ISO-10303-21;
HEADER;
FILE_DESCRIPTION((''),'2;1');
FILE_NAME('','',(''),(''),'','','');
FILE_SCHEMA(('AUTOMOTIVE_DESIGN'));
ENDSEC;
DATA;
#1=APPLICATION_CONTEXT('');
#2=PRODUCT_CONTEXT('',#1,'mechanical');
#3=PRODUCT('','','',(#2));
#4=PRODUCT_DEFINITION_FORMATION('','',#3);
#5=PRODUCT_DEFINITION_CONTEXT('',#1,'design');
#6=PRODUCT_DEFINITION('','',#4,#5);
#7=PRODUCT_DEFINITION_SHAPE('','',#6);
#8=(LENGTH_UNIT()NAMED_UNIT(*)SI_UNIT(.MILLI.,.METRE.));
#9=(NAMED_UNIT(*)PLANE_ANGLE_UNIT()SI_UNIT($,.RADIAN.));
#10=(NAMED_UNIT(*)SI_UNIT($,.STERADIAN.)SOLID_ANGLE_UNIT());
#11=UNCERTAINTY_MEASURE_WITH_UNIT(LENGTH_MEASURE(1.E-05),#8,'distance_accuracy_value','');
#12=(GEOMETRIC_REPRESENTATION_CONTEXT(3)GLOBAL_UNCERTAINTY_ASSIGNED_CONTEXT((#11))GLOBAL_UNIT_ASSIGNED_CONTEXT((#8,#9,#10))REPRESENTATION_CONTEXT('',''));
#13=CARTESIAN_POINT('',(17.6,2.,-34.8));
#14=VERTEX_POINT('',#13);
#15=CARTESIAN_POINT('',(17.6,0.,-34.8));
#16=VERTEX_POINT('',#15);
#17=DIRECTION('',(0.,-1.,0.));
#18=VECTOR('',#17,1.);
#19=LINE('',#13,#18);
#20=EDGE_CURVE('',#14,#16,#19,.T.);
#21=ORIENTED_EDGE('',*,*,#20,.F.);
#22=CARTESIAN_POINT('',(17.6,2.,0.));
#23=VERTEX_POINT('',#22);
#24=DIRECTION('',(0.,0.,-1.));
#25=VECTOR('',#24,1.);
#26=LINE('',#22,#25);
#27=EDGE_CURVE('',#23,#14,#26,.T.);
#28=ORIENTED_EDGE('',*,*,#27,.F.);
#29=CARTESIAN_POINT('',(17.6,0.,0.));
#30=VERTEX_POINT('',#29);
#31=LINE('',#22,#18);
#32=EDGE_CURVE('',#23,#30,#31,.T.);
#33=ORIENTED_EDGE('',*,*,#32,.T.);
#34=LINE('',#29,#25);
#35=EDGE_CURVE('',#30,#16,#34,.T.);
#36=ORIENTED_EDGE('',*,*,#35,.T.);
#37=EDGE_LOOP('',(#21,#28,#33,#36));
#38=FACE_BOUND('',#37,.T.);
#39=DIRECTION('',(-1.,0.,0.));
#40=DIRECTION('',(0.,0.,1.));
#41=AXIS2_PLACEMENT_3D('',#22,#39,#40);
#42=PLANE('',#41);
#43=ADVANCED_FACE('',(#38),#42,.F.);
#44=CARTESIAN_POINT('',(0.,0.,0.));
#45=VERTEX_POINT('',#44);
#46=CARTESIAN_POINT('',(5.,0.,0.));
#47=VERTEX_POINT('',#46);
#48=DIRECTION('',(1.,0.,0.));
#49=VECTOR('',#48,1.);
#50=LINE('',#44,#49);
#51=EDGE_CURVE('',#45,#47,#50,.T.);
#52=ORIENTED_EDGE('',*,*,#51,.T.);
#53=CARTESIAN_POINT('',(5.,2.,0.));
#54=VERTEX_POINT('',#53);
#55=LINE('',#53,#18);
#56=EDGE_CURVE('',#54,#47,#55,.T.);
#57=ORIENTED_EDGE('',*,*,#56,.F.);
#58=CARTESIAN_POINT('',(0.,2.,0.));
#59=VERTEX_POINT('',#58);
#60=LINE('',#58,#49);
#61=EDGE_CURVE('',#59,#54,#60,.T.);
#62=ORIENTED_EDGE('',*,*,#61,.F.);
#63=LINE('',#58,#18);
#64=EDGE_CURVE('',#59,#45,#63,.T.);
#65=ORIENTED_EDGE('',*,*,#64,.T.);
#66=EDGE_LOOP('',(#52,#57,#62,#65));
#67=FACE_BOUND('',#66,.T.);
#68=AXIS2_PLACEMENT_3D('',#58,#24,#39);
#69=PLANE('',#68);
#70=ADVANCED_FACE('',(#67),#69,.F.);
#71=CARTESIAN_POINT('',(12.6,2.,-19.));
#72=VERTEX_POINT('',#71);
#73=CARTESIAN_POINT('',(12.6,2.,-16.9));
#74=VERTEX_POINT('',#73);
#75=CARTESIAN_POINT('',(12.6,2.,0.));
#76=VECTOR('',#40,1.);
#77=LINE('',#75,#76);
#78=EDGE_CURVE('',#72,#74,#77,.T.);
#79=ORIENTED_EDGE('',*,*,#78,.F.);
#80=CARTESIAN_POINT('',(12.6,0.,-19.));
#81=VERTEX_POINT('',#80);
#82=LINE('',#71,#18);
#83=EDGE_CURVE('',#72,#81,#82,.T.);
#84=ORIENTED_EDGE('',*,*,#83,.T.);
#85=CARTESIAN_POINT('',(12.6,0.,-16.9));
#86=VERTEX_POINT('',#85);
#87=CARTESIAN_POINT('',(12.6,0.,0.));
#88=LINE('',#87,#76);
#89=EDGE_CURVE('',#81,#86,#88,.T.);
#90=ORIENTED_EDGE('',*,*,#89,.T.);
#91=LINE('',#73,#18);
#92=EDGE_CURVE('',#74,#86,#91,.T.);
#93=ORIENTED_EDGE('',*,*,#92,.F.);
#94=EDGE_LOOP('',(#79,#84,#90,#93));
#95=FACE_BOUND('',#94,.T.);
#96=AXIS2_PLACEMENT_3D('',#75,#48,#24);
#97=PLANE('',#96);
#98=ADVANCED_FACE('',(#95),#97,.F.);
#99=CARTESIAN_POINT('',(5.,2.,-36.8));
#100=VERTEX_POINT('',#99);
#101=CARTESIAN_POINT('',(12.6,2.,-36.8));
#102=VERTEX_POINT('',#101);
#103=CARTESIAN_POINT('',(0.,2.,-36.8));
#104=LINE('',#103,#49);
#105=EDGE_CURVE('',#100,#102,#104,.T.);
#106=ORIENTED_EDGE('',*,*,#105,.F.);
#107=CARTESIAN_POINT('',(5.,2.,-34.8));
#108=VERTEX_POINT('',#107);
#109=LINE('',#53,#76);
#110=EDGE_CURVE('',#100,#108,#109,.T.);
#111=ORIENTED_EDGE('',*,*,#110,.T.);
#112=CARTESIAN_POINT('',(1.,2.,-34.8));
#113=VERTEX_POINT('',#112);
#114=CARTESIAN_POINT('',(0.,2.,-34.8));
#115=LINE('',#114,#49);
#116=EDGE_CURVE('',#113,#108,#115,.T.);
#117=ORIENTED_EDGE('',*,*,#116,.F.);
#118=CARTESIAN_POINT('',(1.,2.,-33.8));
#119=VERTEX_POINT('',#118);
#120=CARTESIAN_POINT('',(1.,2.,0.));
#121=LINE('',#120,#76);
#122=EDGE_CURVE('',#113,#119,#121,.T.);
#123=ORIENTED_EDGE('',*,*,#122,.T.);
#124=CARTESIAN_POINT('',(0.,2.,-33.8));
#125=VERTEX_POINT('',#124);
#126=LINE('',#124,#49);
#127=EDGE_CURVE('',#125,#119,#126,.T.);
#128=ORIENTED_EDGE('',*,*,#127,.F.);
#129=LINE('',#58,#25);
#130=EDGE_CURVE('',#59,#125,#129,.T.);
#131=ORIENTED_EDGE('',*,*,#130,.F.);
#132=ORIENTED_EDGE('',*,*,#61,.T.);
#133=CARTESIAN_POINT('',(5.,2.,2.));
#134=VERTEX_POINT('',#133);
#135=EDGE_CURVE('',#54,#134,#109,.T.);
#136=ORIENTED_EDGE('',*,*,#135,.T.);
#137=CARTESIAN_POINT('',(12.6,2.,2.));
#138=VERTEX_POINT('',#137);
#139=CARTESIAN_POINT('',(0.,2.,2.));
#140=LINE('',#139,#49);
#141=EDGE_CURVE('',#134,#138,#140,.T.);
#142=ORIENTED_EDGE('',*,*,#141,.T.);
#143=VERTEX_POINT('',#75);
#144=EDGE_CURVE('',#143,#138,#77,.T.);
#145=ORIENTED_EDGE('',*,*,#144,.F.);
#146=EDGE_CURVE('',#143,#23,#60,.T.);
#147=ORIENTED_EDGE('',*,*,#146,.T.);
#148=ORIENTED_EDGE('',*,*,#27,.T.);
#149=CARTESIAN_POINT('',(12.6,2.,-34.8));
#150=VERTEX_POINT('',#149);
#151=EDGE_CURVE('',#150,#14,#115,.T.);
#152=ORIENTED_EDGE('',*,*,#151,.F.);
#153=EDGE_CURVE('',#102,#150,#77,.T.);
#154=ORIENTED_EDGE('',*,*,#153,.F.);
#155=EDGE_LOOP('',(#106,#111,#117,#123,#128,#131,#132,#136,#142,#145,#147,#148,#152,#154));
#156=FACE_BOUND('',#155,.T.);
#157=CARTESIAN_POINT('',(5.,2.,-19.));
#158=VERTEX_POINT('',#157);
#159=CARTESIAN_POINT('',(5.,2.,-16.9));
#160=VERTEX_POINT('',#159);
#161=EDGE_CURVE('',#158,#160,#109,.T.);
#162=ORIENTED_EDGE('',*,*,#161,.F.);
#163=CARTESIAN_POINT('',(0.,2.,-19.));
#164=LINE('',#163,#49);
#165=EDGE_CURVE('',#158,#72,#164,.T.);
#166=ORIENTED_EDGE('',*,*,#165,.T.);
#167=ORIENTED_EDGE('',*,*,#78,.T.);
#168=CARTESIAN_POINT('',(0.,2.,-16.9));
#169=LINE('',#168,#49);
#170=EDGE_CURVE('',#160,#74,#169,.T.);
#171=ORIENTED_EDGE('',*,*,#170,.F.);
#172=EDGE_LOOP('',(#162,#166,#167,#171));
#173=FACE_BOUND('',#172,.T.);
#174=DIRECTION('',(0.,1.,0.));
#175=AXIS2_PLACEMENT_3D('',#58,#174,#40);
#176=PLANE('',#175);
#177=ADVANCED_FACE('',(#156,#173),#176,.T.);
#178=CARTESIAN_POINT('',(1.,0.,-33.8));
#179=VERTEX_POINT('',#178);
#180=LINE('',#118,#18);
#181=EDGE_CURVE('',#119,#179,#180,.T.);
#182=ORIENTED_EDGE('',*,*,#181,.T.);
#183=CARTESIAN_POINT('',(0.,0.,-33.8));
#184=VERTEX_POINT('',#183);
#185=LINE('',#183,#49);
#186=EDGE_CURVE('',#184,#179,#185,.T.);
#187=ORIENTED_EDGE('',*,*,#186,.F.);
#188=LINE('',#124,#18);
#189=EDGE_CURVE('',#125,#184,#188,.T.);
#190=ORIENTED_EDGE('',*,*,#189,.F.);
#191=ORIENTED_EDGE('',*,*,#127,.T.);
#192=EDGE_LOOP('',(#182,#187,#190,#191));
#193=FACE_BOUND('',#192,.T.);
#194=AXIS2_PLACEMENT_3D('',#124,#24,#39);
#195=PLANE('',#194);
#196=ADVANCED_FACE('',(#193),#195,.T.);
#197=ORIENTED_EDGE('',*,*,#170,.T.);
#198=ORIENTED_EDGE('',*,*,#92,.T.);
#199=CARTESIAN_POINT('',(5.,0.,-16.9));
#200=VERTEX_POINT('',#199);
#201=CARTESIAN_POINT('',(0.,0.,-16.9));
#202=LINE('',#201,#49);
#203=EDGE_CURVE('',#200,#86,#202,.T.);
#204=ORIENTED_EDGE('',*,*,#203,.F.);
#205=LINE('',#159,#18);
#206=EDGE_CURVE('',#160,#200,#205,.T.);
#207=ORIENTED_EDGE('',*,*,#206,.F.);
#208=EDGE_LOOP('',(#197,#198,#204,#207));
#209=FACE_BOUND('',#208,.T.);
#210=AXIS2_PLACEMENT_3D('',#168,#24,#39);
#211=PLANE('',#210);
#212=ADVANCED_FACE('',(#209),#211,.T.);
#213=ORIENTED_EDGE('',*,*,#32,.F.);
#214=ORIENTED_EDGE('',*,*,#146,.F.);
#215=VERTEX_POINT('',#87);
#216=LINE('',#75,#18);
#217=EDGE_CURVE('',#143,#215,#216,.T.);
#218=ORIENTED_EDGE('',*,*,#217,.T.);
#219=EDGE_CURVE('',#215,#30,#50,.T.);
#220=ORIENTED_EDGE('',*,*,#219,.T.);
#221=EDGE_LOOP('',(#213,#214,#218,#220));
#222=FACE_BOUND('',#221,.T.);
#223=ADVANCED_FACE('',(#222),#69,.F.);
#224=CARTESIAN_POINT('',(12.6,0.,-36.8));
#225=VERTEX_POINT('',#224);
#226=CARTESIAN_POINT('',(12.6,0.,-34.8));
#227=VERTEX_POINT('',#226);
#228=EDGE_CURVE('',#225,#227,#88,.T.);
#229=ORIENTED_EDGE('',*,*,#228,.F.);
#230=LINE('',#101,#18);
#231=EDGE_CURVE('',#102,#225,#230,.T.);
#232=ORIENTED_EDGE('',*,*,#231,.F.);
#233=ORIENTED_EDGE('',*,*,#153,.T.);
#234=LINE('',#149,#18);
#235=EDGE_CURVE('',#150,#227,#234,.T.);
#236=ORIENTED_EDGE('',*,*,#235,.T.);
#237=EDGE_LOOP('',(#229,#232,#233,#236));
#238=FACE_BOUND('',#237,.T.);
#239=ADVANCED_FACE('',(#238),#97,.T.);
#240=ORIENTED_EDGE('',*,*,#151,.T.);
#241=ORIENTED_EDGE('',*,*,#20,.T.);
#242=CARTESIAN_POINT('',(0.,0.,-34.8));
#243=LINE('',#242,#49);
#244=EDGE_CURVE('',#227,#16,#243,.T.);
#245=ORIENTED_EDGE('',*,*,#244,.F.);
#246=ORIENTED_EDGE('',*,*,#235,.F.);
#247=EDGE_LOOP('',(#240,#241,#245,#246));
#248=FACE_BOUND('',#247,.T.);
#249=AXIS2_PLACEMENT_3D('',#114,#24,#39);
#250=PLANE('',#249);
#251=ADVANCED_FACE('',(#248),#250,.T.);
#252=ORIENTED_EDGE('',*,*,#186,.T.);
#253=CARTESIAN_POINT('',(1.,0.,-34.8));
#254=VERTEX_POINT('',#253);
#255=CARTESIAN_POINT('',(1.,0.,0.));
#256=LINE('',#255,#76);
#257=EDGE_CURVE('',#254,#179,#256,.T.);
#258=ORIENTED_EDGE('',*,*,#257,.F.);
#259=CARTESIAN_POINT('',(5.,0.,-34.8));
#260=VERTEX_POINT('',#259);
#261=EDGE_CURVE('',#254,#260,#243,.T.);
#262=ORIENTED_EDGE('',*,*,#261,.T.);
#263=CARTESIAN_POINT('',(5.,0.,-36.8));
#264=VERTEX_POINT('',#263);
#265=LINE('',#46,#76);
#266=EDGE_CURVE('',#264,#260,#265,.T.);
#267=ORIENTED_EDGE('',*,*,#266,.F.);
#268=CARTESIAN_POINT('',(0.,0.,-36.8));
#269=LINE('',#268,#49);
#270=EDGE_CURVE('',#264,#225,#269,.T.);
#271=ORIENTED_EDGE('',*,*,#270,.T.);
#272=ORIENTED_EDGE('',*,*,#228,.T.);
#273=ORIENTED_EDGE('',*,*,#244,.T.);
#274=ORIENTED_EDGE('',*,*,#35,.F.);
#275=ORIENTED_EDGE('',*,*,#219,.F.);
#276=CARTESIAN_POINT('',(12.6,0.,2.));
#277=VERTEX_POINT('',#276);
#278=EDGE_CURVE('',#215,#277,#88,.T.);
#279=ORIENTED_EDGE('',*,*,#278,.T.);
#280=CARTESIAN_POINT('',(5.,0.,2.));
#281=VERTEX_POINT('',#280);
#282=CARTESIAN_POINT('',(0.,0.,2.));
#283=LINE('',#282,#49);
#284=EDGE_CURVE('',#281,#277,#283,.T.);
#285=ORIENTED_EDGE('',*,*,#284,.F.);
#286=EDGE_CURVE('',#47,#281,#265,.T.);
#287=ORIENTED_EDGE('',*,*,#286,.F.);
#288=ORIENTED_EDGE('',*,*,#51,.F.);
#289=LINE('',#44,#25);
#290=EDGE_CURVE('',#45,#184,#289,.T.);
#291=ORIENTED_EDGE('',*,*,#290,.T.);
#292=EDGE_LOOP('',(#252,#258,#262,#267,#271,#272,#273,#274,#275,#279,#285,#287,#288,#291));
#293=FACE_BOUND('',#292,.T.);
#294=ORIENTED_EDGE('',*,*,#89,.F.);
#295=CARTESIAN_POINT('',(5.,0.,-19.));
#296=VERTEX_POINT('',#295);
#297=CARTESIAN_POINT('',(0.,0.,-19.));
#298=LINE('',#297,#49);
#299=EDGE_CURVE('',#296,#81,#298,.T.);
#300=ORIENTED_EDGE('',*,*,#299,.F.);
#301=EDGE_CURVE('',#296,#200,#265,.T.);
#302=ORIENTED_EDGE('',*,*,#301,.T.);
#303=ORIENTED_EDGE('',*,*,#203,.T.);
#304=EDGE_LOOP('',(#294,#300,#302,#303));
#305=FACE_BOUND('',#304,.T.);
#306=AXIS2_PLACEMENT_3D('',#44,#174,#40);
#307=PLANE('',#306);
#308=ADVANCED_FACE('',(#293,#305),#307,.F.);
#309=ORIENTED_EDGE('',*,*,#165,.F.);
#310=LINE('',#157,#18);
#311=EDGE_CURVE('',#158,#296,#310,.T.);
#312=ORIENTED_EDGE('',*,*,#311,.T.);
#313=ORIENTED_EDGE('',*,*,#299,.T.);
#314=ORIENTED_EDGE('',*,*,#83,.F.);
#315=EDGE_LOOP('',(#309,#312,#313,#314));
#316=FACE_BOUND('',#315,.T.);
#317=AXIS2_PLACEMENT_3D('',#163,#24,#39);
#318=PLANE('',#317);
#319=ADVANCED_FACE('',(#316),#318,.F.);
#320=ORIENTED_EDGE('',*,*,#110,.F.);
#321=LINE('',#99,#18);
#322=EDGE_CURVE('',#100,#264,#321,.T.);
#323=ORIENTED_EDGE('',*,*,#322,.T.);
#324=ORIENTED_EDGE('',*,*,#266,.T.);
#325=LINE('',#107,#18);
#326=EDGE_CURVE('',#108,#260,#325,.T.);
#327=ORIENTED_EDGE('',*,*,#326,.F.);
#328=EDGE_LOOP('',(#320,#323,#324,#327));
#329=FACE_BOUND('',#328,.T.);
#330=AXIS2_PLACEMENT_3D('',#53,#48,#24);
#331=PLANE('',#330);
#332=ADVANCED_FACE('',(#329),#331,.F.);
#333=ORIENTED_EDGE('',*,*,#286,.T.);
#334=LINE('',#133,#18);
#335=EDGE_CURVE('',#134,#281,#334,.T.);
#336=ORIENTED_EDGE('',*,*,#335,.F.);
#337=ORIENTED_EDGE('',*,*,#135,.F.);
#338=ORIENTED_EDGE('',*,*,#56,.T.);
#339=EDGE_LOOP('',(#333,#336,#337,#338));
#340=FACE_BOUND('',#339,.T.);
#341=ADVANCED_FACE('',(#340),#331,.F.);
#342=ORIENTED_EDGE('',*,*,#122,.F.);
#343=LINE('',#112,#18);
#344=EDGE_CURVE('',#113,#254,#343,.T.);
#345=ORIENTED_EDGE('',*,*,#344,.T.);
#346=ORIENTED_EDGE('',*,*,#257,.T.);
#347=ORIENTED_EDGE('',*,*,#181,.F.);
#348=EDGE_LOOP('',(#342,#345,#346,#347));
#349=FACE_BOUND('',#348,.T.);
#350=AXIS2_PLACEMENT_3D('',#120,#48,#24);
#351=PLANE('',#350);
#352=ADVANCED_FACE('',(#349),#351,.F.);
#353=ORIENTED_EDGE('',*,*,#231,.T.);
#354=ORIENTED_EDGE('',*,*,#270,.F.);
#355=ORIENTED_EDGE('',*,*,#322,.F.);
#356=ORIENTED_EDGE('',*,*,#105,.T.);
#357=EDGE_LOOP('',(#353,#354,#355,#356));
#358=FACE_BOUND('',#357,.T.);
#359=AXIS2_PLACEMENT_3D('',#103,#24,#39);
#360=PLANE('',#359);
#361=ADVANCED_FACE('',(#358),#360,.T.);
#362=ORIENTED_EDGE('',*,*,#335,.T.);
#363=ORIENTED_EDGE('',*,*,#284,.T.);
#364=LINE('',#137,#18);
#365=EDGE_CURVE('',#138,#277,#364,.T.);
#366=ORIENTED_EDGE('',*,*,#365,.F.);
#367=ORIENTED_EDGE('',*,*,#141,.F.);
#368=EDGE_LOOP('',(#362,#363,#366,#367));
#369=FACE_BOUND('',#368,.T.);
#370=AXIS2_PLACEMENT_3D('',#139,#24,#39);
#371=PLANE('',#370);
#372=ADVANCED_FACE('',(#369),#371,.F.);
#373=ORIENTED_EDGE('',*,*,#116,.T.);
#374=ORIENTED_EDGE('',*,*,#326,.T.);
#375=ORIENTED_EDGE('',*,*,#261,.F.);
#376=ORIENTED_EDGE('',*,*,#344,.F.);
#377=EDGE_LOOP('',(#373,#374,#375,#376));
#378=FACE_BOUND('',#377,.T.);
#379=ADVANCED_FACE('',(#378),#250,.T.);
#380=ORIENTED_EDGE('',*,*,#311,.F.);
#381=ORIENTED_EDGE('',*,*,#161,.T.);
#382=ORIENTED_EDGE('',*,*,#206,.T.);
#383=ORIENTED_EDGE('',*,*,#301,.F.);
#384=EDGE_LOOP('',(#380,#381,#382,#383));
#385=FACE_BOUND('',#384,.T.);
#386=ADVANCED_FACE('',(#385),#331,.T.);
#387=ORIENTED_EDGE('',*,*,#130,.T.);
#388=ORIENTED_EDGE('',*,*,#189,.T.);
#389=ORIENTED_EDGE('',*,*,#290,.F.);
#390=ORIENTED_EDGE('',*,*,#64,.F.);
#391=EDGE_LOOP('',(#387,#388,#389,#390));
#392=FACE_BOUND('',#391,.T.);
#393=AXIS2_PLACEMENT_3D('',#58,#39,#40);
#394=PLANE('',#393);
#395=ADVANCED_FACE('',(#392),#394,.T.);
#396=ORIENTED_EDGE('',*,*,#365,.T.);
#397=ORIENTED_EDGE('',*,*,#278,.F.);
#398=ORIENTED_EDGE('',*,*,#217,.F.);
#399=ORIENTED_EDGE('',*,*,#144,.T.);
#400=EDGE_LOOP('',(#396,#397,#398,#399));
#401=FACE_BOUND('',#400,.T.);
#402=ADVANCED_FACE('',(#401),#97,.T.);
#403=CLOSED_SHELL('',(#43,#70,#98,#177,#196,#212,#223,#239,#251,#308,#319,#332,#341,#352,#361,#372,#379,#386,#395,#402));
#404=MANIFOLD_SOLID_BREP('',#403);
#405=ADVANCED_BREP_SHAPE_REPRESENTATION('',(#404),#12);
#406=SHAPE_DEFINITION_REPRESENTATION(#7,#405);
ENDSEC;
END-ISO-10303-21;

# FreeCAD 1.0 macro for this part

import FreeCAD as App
import Part
import Sketcher

doc = App.newDocument("Part")
body = doc.addObject("PartDesign::Body", "Body")

sketch1 = body.newObject("Sketcher::SketchObject", "Sketch")
sketch1.AttachmentSupport = (doc.getObject("XZ_Plane"), [""])
sketch1.MapMode = "FlatFace"
sketch1.addGeometry(Part.LineSegment(App.Vector(0, -33.8, 0), App.Vector(0, 0, 0)), False)
sketch1.addGeometry(Part.LineSegment(App.Vector(0, 0, 0), App.Vector(5, 0, 0)), False)
sketch1.addGeometry(Part.LineSegment(App.Vector(5, 0, 0), App.Vector(5, 2, 0)), False)
sketch1.addGeometry(Part.LineSegment(App.Vector(5, 2, 0), App.Vector(12.6, 2, 0)), False)
sketch1.addGeometry(Part.LineSegment(App.Vector(12.6, 2, 0), App.Vector(12.6, 0, 0)), False)
sketch1.addGeometry(Part.LineSegment(App.Vector(12.6, 0, 0), App.Vector(17.6, 0, 0)), False)
sketch1.addGeometry(Part.LineSegment(App.Vector(17.6, 0, 0), App.Vector(17.6, -34.8, 0)), False)
sketch1.addGeometry(Part.LineSegment(App.Vector(17.6, -34.8, 0), App.Vector(12.6, -34.8, 0)), False)
sketch1.addGeometry(Part.LineSegment(App.Vector(12.6, -34.8, 0), App.Vector(12.6, -36.8, 0)), False)
sketch1.addGeometry(Part.LineSegment(App.Vector(12.6, -36.8, 0), App.Vector(5, -36.8, 0)), False)
sketch1.addGeometry(Part.LineSegment(App.Vector(5, -36.8, 0), App.Vector(5, -34.8, 0)), False)
sketch1.addGeometry(Part.LineSegment(App.Vector(5, -34.8, 0), App.Vector(1, -34.8, 0)), False)
sketch1.addGeometry(Part.LineSegment(App.Vector(1, -34.8, 0), App.Vector(1, -33.8, 0)), False)
sketch1.addGeometry(Part.LineSegment(App.Vector(1, -33.8, 0), App.Vector(0, -33.8, 0)), False)
sketch1.addGeometry(Part.LineSegment(App.Vector(12.6, -16.9, 0), App.Vector(5, -16.9, 0)), False)
sketch1.addGeometry(Part.LineSegment(App.Vector(5, -16.9, 0), App.Vector(5, -19, 0)), False)
sketch1.addGeometry(Part.LineSegment(App.Vector(5, -19, 0), App.Vector(12.6, -19, 0)), False)
sketch1.addGeometry(Part.LineSegment(App.Vector(12.6, -19, 0), App.Vector(12.6, -16.9, 0)), False)
sketch1.addConstraint(Sketcher.Constraint("Coincident", 0, 2, 1, 1))
sketch1.addConstraint(Sketcher.Constraint("Coincident", 1, 2, 2, 1))
sketch1.addConstraint(Sketcher.Constraint("Coincident", 2, 2, 3, 1))
sketch1.addConstraint(Sketcher.Constraint("Coincident", 3, 2, 4, 1))
sketch1.addConstraint(Sketcher.Constraint("Coincident", 4, 2, 5, 1))
sketch1.addConstraint(Sketcher.Constraint("Coincident", 5, 2, 6, 1))
sketch1.addConstraint(Sketcher.Constraint("Coincident", 6, 2, 7, 1))
sketch1.addConstraint(Sketcher.Constraint("Coincident", 7, 2, 8, 1))
sketch1.addConstraint(Sketcher.Constraint("Coincident", 8, 2, 9, 1))
sketch1.addConstraint(Sketcher.Constraint("Coincident", 9, 2, 10, 1))
sketch1.addConstraint(Sketcher.Constraint("Coincident", 10, 2, 11, 1))
sketch1.addConstraint(Sketcher.Constraint("Coincident", 11, 2, 12, 1))
sketch1.addConstraint(Sketcher.Constraint("Coincident", 12, 2, 13, 1))
sketch1.addConstraint(Sketcher.Constraint("Coincident", 13, 2, 0, 1))
sketch1.addConstraint(Sketcher.Constraint("Coincident", 14, 2, 15, 1))
sketch1.addConstraint(Sketcher.Constraint("Coincident", 15, 2, 16, 1))
sketch1.addConstraint(Sketcher.Constraint("Coincident", 16, 2, 17, 1))
sketch1.addConstraint(Sketcher.Constraint("Coincident", 17, 2, 14, 1))
sketch1.addConstraint(Sketcher.Constraint("Vertical", 0))
sketch1.addConstraint(Sketcher.Constraint("Horizontal", 1))
sketch1.addConstraint(Sketcher.Constraint("Vertical", 2))
sketch1.addConstraint(Sketcher.Constraint("Horizontal", 3))
sketch1.addConstraint(Sketcher.Constraint("Vertical", 4))
sketch1.addConstraint(Sketcher.Constraint("Horizontal", 5))
sketch1.addConstraint(Sketcher.Constraint("Vertical", 6))
sketch1.addConstraint(Sketcher.Constraint("Horizontal", 7))
sketch1.addConstraint(Sketcher.Constraint("Vertical", 8))
sketch1.addConstraint(Sketcher.Constraint("Horizontal", 9))
sketch1.addConstraint(Sketcher.Constraint("Vertical", 10))
sketch1.addConstraint(Sketcher.Constraint("Horizontal", 11))
sketch1.addConstraint(Sketcher.Constraint("Vertical", 12))
sketch1.addConstraint(Sketcher.Constraint("Horizontal", 13))
sketch1.addConstraint(Sketcher.Constraint("Horizontal", 14))
sketch1.addConstraint(Sketcher.Constraint("Vertical", 15))
sketch1.addConstraint(Sketcher.Constraint("Horizontal", 16))
sketch1.addConstraint(Sketcher.Constraint("Vertical", 17))
sketch1.addConstraint(Sketcher.Constraint("Coincident", 0, 2, -1, 1))
sketch1.addConstraint(Sketcher.Constraint("PointOnObject", 4, 2, -1))
sketch1.addConstraint(Sketcher.Constraint("Horizontal", 7, 2, 10, 2))
sketch1.addConstraint(Sketcher.Constraint("Vertical", 4, 2, 7, 2))
sketch1.addConstraint(Sketcher.Constraint("Vertical", 2, 2, 9, 2))
sketch1.addConstraint(Sketcher.Constraint("Vertical", 10, 2, 14, 2))
sketch1.addConstraint(Sketcher.Constraint("Vertical", 8, 2, 16, 2))
sketch1.addConstraint(Sketcher.Constraint("Equal", 1, 5))
sketch1.addConstraint(Sketcher.Constraint("Equal", 4, 8))
sketch1.addConstraint(Sketcher.Constraint("Equal", 13, 12))
sketch1.addConstraint(Sketcher.Constraint("DistanceX", 1, 1, 1, 2, 5.0))
sketch1.addConstraint(Sketcher.Constraint("DistanceX", 11, 2, 11, 1, 4.0))
sketch1.addConstraint(Sketcher.Constraint("DistanceY", 2, 1, 2, 2, 2.0))
sketch1.addConstraint(Sketcher.Constraint("DistanceX", 3, 1, 3, 2, 7.6))
sketch1.addConstraint(Sketcher.Constraint("DistanceY", 0, 1, 0, 2, 33.8))
sketch1.addConstraint(Sketcher.Constraint("DistanceY", 15, 2, 15, 1, 2.1))
sketch1.addConstraint(Sketcher.Constraint("DistanceY", 15, 2, -1, 1, 19.0))
pad1 = body.newObject("PartDesign::Pad", "Pad")
pad1.Profile = sketch1
pad1.Length = 2
pad1.Reversed = True

doc.recompute()
